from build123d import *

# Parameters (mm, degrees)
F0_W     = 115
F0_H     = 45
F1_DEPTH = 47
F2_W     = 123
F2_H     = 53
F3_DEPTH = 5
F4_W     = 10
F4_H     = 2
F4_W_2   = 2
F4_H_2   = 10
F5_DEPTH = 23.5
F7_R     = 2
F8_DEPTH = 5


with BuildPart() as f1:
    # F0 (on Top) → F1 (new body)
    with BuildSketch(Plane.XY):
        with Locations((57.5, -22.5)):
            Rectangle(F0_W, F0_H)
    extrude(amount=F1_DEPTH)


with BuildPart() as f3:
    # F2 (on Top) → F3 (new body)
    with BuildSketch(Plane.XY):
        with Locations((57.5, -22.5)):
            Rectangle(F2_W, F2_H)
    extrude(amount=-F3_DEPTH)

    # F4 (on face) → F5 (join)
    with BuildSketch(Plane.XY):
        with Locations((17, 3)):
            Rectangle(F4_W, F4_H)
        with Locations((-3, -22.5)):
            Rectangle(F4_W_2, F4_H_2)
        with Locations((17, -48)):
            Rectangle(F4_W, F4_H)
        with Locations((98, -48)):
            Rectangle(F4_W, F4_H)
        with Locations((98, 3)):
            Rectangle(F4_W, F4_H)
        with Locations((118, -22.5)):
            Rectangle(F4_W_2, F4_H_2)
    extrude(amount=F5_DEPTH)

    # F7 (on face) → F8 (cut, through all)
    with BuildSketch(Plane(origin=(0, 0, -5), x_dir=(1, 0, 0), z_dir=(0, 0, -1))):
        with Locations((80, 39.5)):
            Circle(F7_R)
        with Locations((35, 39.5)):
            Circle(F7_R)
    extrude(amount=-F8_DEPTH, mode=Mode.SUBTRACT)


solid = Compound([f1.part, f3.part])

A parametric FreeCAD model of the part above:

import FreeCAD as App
import Part
import Sketcher

V = App.Vector


def add_polygon(sketch, points):
    """Adds a closed chain of lines whose ends are joined by coincident constraints."""
    first, n = sketch.GeometryCount, len(points)
    for a, b in zip(points, points[1:] + points[:1]):
        sketch.addGeometry(Part.LineSegment(App.Vector(*a, 0), App.Vector(*b, 0)), False)
    for i in range(n):
        sketch.addConstraint(Sketcher.Constraint("Coincident", first + i, 2, first + (i + 1) % n, 1))

doc = App.newDocument("Part")
body = doc.addObject("PartDesign::Body", "Body")

# Sketch on XY plane
sketch1 = doc.addObject("Sketcher::SketchObject", "Sketch")
body.addObject(sketch1)
sketch1.AttachmentSupport = (doc.XY_Plane, [""])
sketch1.MapMode = "FlatFace"
add_polygon(sketch1, [(0, 0), (0, -45), (115, -45), (115, 0)])  # lines 0-3
sketch1.addConstraint([
    Sketcher.Constraint("Vertical", 0),
    Sketcher.Constraint("Horizontal", 1),
    Sketcher.Constraint("Vertical", 2),
    Sketcher.Constraint("Horizontal", 3),
    Sketcher.Constraint("Coincident", 3, 2, -1, 1),
    Sketcher.Constraint("DistanceX", 1, 1, 1, 2, 115.0),
    Sketcher.Constraint("DistanceY", 0, 2, 0, 1, 45.0),
])
pad1 = doc.addObject("PartDesign::Pad", "Pad")
body.addObject(pad1)
pad1.Profile = sketch1
pad1.Length = 47
body2 = doc.addObject("PartDesign::Body", "Body001")

# Sketch on XY plane
sketch2 = doc.addObject("Sketcher::SketchObject", "Sketch001")
body2.addObject(sketch2)
sketch2.AttachmentSupport = (doc.getObject("XY_Plane001"), [""])
sketch2.MapMode = "FlatFace"
add_polygon(sketch2, [(-4, 4), (-4, -49), (119, -49), (119, 4)])  # lines 0-3
sketch2.addConstraint([
    Sketcher.Constraint("Vertical", 0),
    Sketcher.Constraint("Horizontal", 1),
    Sketcher.Constraint("Vertical", 2),
    Sketcher.Constraint("Horizontal", 3),
    Sketcher.Constraint("DistanceX", 1, 1, 1, 2, 123.0),
    Sketcher.Constraint("DistanceY", 0, 2, 0, 1, 53.0),
    Sketcher.Constraint("DistanceX", 0, 2, -1, 1, 4.0),
    Sketcher.Constraint("DistanceY", 0, 2, -1, 1, 49.0),
])
pad2 = doc.addObject("PartDesign::Pad", "Pad001")
body2.addObject(pad2)
pad2.Profile = sketch2
pad2.Length = 5
pad2.Reversed = True

# Sketch on XY plane
sketch3 = doc.addObject("Sketcher::SketchObject", "Sketch002")
body2.addObject(sketch3)
sketch3.AttachmentSupport = (doc.getObject("XY_Plane001"), [""])
sketch3.MapMode = "FlatFace"
add_polygon(sketch3, [(12, 4), (12, 2), (22, 2), (22, 4)])  # lines 0-3
add_polygon(sketch3, [(-4, -17.5), (-4, -27.5), (-2, -27.5), (-2, -17.5)])  # lines 4-7
add_polygon(sketch3, [(12, -47), (12, -49), (22, -49), (22, -47)])  # lines 8-11
add_polygon(sketch3, [(93, -47), (93, -49), (103, -49), (103, -47)])  # lines 12-15
add_polygon(sketch3, [(93, 4), (93, 2), (103, 2), (103, 4)])  # lines 16-19
add_polygon(sketch3, [(117, -17.5), (117, -27.5), (119, -27.5), (119, -17.5)])  # lines 20-23
sketch3.addConstraint([
    Sketcher.Constraint("Vertical", 0),
    Sketcher.Constraint("Horizontal", 1),
    Sketcher.Constraint("Vertical", 2),
    Sketcher.Constraint("Horizontal", 3),
    Sketcher.Constraint("Vertical", 4),
    Sketcher.Constraint("Horizontal", 5),
    Sketcher.Constraint("Vertical", 6),
    Sketcher.Constraint("Horizontal", 7),
    Sketcher.Constraint("Vertical", 8),
    Sketcher.Constraint("Horizontal", 9),
    Sketcher.Constraint("Vertical", 10),
    Sketcher.Constraint("Horizontal", 11),
    Sketcher.Constraint("Vertical", 12),
    Sketcher.Constraint("Horizontal", 13),
    Sketcher.Constraint("Vertical", 14),
    Sketcher.Constraint("Horizontal", 15),
    Sketcher.Constraint("Vertical", 16),
    Sketcher.Constraint("Horizontal", 17),
    Sketcher.Constraint("Vertical", 18),
    Sketcher.Constraint("Horizontal", 19),
    Sketcher.Constraint("Vertical", 20),
    Sketcher.Constraint("Horizontal", 21),
    Sketcher.Constraint("Vertical", 22),
    Sketcher.Constraint("Horizontal", 23),
    Sketcher.Constraint("Horizontal", 9, 2, 12, 2),
    Sketcher.Constraint("Horizontal", 11, 2, 14, 2),
    Sketcher.Constraint("Horizontal", 1, 2, 16, 2),
    Sketcher.Constraint("Horizontal", 3, 2, 18, 2),
    Sketcher.Constraint("Horizontal", 5, 2, 20, 2),
    Sketcher.Constraint("Horizontal", 7, 2, 22, 2),
    Sketcher.Constraint("Vertical", 3, 2, 8, 2),
    Sketcher.Constraint("Vertical", 2, 2, 9, 2),
    Sketcher.Constraint("Vertical", 15, 2, 16, 2),
    Sketcher.Constraint("Vertical", 14, 2, 17, 2),
    Sketcher.Constraint("Equal", 11, 13),
    Sketcher.Constraint("Equal", 7, 21),
    Sketcher.Constraint("Equal", 23, 0),
    Sketcher.Constraint("Equal", 19, 4),
    Sketcher.Constraint("Equal", 2, 8),
    Sketcher.Constraint("DistanceX", 1, 1, 1, 2, 10.0),
    Sketcher.Constraint("DistanceX", 5, 1, 5, 2, 2.0),
    Sketcher.Constraint("DistanceX", -1, 1, 0, 2, 12.0),
    Sketcher.Constraint("DistanceY", -1, 1, 0, 2, 2.0),
    Sketcher.Constraint("DistanceX", 4, 2, -1, 1, 4.0),
    Sketcher.Constraint("DistanceY", 8, 2, -1, 1, 49.0),
    Sketcher.Constraint("DistanceX", -1, 1, 12, 2, 93.0),
    Sketcher.Constraint("DistanceX", -1, 1, 20, 2, 117.0),
    Sketcher.Constraint("DistanceY", 4, 2, -1, 1, 27.5),
])
pad3 = doc.addObject("PartDesign::Pad", "Pad002")
body2.addObject(pad3)
pad3.Profile = sketch3
pad3.Length = 23.5

# Sketch on XY plane
sketch4 = doc.addObject("Sketcher::SketchObject", "Sketch003")
body2.addObject(sketch4)
sketch4.AttachmentSupport = (doc.getObject("XY_Plane001"), [""])
sketch4.MapMode = "FlatFace"
sketch4.AttachmentOffset = App.Placement(V(0, 0, -5), App.Rotation())
sketch4.addGeometry([
    Part.Circle(V(80, -39.5, 0), V(0, 0, 1), 2),
    Part.Circle(V(35, -39.5, 0), V(0, 0, 1), 2),
], False)
sketch4.addConstraint([
    Sketcher.Constraint("Equal", 0, 1),
    Sketcher.Constraint("Horizontal", 0, 3, 1, 3),
    Sketcher.Constraint("Diameter", 0, 4.0),
    Sketcher.Constraint("DistanceX", -1, 1, 0, 3, 80.0),
    Sketcher.Constraint("DistanceX", -1, 1, 1, 3, 35.0),
    Sketcher.Constraint("DistanceY", 0, 3, -1, 1, 39.5),
])
pocket1 = doc.addObject("PartDesign::Pocket", "Pocket")
body2.addObject(pocket1)
pocket1.Profile = sketch4
pocket1.Type = "ThroughAll"
pocket1.Reversed = True

doc.recompute()
